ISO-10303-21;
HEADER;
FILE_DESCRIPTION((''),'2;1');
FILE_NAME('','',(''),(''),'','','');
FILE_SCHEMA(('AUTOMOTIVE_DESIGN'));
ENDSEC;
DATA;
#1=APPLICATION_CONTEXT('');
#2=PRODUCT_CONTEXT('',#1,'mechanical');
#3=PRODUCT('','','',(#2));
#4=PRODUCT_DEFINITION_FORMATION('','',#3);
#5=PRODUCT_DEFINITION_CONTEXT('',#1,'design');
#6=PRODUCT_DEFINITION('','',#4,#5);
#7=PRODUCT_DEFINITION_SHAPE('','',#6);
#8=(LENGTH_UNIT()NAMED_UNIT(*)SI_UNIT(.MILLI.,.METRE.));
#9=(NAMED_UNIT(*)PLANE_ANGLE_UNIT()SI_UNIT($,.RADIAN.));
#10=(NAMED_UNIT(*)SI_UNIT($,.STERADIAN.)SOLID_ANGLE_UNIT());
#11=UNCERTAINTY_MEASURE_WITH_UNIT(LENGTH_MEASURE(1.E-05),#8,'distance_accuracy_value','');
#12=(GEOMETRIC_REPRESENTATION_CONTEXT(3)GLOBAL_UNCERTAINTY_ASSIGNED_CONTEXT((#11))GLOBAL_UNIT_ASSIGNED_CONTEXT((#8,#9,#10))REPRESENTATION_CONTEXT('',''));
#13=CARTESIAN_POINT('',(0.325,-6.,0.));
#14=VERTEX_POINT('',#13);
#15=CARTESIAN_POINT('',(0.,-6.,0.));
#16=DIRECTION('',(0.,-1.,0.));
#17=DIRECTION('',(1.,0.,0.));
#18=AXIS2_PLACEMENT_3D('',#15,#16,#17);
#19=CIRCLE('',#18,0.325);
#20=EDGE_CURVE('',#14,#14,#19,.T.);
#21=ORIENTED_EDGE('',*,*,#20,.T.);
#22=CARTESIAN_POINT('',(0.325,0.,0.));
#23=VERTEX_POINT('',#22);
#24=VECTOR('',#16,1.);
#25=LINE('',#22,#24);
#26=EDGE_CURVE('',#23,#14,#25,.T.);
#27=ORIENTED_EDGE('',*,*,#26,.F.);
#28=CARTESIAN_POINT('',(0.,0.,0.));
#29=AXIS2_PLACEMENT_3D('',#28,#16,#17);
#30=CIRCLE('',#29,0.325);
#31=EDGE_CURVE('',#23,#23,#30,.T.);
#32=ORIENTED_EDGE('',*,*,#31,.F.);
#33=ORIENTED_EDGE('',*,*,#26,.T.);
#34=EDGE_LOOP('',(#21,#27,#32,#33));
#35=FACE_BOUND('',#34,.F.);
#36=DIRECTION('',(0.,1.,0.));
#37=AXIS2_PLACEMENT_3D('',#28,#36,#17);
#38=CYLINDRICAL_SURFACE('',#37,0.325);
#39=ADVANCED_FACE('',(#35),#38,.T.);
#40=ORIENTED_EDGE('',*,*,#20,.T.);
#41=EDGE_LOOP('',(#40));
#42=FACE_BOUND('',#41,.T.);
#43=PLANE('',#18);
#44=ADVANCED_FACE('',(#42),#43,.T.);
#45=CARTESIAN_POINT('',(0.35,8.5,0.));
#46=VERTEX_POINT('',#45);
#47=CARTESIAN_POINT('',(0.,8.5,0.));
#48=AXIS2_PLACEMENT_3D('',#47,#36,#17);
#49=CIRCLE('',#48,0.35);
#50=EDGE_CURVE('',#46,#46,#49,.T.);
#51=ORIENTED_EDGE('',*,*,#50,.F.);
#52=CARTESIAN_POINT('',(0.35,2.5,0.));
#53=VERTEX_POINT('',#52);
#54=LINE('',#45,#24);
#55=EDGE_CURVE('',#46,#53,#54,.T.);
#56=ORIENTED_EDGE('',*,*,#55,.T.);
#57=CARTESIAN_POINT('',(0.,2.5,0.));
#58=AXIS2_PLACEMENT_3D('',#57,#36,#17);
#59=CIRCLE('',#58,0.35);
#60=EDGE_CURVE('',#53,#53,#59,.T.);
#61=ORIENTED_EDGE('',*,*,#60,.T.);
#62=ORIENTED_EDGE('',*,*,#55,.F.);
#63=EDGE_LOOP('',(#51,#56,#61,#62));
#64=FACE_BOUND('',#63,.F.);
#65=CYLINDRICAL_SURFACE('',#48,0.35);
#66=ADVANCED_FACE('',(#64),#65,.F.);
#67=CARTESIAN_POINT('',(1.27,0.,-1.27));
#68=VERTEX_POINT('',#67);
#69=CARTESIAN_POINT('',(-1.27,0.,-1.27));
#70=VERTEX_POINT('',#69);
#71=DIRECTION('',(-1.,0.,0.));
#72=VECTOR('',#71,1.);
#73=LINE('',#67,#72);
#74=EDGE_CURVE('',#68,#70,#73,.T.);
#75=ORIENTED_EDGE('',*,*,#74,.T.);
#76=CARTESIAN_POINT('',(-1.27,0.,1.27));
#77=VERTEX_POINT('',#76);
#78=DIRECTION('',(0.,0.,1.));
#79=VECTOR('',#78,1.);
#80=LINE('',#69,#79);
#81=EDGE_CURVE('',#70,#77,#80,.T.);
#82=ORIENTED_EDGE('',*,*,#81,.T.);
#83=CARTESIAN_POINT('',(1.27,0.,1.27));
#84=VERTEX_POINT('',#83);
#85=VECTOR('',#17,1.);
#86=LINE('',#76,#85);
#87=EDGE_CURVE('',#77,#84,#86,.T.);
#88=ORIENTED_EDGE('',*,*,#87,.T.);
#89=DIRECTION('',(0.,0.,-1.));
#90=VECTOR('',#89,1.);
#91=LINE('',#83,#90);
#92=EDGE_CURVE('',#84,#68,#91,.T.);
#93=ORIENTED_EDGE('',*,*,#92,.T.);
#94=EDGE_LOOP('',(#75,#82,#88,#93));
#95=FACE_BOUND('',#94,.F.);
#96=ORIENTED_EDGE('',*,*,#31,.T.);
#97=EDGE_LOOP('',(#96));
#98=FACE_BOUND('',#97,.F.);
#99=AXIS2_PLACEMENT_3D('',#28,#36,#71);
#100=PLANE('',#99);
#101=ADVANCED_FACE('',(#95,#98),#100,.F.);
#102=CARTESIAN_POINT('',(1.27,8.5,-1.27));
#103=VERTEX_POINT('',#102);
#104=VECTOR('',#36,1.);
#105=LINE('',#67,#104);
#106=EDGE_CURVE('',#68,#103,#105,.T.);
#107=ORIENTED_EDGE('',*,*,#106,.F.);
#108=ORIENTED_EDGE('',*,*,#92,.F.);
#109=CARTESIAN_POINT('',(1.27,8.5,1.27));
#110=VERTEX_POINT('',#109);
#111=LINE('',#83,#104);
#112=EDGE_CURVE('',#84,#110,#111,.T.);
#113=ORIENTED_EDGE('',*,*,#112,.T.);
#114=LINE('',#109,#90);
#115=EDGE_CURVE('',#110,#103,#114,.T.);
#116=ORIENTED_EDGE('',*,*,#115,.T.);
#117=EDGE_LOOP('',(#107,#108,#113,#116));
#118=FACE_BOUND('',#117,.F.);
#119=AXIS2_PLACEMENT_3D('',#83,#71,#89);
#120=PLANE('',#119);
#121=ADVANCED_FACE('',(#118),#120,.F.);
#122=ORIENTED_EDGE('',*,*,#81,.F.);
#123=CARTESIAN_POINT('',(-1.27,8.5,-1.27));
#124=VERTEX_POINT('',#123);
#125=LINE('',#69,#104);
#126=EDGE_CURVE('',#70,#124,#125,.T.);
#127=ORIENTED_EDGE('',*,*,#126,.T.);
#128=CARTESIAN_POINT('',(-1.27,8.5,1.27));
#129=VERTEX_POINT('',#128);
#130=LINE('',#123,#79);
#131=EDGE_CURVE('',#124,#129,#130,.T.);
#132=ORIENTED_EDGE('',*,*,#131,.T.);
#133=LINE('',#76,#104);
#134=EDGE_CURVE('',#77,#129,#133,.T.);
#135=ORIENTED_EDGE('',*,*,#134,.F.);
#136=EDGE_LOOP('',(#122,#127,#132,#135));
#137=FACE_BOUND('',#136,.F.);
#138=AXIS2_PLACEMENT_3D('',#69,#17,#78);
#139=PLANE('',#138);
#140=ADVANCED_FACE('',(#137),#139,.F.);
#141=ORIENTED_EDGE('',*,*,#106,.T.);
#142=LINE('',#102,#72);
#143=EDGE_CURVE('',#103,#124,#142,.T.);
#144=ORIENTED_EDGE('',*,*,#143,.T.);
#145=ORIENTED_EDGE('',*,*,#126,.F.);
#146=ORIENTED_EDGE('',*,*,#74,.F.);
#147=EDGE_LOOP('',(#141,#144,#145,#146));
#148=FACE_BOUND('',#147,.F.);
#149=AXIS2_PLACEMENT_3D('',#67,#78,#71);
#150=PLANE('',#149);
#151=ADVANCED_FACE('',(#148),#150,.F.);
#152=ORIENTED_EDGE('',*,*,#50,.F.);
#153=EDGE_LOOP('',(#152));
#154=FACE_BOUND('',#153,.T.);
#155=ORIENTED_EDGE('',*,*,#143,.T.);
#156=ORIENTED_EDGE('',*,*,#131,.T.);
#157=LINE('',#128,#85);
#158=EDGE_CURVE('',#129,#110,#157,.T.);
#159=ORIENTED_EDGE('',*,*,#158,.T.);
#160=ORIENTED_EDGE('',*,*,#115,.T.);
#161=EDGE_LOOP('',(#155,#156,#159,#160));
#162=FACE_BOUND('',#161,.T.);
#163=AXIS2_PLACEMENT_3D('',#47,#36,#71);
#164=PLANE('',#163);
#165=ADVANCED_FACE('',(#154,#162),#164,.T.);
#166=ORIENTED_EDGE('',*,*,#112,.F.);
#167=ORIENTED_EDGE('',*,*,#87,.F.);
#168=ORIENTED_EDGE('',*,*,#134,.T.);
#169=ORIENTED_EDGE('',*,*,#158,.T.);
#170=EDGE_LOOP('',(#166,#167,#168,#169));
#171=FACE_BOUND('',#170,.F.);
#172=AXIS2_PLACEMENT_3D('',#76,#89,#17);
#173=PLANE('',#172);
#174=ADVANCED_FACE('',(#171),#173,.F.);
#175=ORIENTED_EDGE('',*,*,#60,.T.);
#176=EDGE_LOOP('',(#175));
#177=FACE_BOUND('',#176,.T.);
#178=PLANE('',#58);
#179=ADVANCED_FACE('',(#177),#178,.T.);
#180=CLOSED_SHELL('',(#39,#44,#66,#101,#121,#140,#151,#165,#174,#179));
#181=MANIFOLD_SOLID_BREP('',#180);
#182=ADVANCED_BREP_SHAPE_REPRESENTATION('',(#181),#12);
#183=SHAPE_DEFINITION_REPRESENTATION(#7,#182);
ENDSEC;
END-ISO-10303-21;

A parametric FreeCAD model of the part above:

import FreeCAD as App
import Part
import Sketcher

doc = App.newDocument("Part")
body = doc.addObject("PartDesign::Body", "Body")

# Sketch on XZ plane
sketch1 = body.newObject("Sketcher::SketchObject", "Sketch")
sketch1.AttachmentSupport = (doc.getObject("XZ_Plane"), [""])
sketch1.MapMode = "FlatFace"
sketch1.addGeometry(Part.LineSegment(App.Vector(1.3, 1.3, 0), App.Vector(1.3, -1.3, 0)), False)
sketch1.addGeometry(Part.LineSegment(App.Vector(1.3, -1.3, 0), App.Vector(-1.3, -1.3, 0)), False)
sketch1.addGeometry(Part.LineSegment(App.Vector(-1.3, -1.3, 0), App.Vector(-1.3, 1.3, 0)), False)
sketch1.addGeometry(Part.LineSegment(App.Vector(-1.3, 1.3, 0), App.Vector(1.3, 1.3, 0)), False)
sketch1.addConstraint(Sketcher.Constraint("Coincident", 0, 2, 1, 1))
sketch1.addConstraint(Sketcher.Constraint("Coincident", 1, 2, 2, 1))
sketch1.addConstraint(Sketcher.Constraint("Coincident", 2, 2, 3, 1))
sketch1.addConstraint(Sketcher.Constraint("Coincident", 3, 2, 0, 1))
sketch1.addConstraint(Sketcher.Constraint("Vertical", 0))
sketch1.addConstraint(Sketcher.Constraint("Horizontal", 1))
sketch1.addConstraint(Sketcher.Constraint("Vertical", 2))
sketch1.addConstraint(Sketcher.Constraint("Horizontal", 3))
sketch1.addConstraint(Sketcher.Constraint("Symmetric", 0, 2, 2, 2, -1, 1))
sketch1.addConstraint(Sketcher.Constraint("Equal", 3, 0))
sketch1.addConstraint(Sketcher.Constraint("DistanceX", 1, 2, 1, 1, 2.54))
pad1 = body.newObject("PartDesign::Pad", "Pad")
pad1.Profile = sketch1
pad1.Length = 8.5
pad1.Reversed = True

# Sketch on XZ plane
sketch2 = body.newObject("Sketcher::SketchObject", "Sketch001")
sketch2.AttachmentSupport = (doc.getObject("XZ_Plane"), [""])
sketch2.MapMode = "FlatFace"
sketch2.AttachmentOffset = App.Placement(App.Vector(0, 0, -8.5), App.Rotation())
sketch2.addGeometry(Part.Circle(App.Vector(0, 0, 0), App.Vector(0, 0, 1), 0.35), False)
sketch2.addConstraint(Sketcher.Constraint("Coincident", 0, 3, -1, 1))
sketch2.addConstraint(Sketcher.Constraint("Diameter", 0, 0.7))
pocket1 = body.newObject("PartDesign::Pocket", "Pocket")
pocket1.Profile = sketch2
pocket1.Length = 6
pocket1.Reversed = True

# Sketch on XZ plane
sketch3 = body.newObject("Sketcher::SketchObject", "Sketch002")
sketch3.AttachmentSupport = (doc.getObject("XZ_Plane"), [""])
sketch3.MapMode = "FlatFace"
sketch3.addGeometry(Part.Circle(App.Vector(0, 0, 0), App.Vector(0, 0, 1), 0.33), False)
sketch3.addConstraint(Sketcher.Constraint("Coincident", 0, 3, -1, 1))
sketch3.addConstraint(Sketcher.Constraint("Diameter", 0, 0.65))
pad2 = body.newObject("PartDesign::Pad", "Pad001")
pad2.Profile = sketch3
pad2.Length = 6

doc.recompute()
